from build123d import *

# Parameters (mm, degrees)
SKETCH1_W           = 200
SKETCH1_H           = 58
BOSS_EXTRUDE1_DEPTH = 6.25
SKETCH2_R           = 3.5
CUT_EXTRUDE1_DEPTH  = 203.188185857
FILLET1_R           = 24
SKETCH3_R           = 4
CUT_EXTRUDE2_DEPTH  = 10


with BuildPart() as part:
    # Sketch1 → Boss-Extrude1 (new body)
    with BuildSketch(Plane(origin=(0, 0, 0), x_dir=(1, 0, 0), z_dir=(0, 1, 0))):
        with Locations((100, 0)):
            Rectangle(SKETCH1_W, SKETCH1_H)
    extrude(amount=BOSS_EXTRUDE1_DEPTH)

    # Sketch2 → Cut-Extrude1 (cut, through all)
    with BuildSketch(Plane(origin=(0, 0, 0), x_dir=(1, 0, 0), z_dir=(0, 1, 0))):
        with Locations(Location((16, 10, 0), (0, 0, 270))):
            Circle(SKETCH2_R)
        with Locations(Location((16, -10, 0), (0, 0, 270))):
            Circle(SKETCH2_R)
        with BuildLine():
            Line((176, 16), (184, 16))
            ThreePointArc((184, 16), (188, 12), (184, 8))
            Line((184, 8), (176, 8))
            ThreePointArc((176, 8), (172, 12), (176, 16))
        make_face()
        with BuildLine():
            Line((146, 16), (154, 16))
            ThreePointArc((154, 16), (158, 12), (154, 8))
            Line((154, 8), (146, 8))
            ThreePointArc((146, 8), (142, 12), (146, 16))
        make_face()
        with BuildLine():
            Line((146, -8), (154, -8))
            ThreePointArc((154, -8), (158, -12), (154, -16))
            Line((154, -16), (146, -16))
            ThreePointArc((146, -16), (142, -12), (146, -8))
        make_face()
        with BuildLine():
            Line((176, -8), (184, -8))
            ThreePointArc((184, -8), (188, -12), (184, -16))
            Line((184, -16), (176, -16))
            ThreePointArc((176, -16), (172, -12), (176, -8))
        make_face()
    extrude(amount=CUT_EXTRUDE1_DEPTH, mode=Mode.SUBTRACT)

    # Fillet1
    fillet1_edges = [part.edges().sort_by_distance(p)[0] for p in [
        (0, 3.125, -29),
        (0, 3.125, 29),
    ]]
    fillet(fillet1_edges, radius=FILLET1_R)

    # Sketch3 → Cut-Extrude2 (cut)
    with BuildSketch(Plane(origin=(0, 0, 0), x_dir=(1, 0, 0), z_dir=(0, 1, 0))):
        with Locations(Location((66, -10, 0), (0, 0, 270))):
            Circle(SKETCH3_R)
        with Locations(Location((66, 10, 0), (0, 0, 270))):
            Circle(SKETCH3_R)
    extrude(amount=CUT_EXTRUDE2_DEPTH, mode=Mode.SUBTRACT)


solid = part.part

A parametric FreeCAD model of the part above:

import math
import FreeCAD as App
import Part
import Sketcher
from FreeCAD import Vector


def edges_at(feature, points):
    """Names of the edges that pass closest to the given points."""
    edges = feature.Shape.Edges
    near = lambda p: min(range(len(edges)), key=lambda i: edges[i].distToShape(Part.Vertex(*p))[0])
    return sorted({f"Edge{near(p) + 1}" for p in points})

doc = App.newDocument("Part")
body = doc.addObject("PartDesign::Body", "Body")

# Sketch on XZ plane
sketch1 = body.newObject("Sketcher::SketchObject", "Sketch")
sketch1.AttachmentSupport = (doc.getObject("XZ_Plane"), [""])
sketch1.MapMode = "FlatFace"
sketch1.addGeometry([
    Part.LineSegment(Vector(0, -29, 0), Vector(0, 29, 0)),
    Part.LineSegment(Vector(0, 29, 0), Vector(200, 29, 0)),
    Part.LineSegment(Vector(200, 29, 0), Vector(200, -29, 0)),
    Part.LineSegment(Vector(200, -29, 0), Vector(0, -29, 0)),
], False)
sketch1.addConstraint([
    Sketcher.Constraint("Coincident", 0, 2, 1, 1),
    Sketcher.Constraint("Coincident", 1, 2, 2, 1),
    Sketcher.Constraint("Coincident", 2, 2, 3, 1),
    Sketcher.Constraint("Coincident", 3, 2, 0, 1),
    Sketcher.Constraint("Vertical", 0),
    Sketcher.Constraint("Horizontal", 1),
    Sketcher.Constraint("Vertical", 2),
    Sketcher.Constraint("Horizontal", 3),
    Sketcher.Constraint("Symmetric", 0, 2, 3, 2, -1, 1),
    Sketcher.Constraint("DistanceX", 1, 1, 1, 2, 200.0),
    Sketcher.Constraint("DistanceY", 0, 1, 0, 2, 58.0),
])
pad1 = body.newObject("PartDesign::Pad", "Pad")
pad1.Profile = sketch1
pad1.Length = 6.25
pad1.Reversed = True

# Sketch on XZ plane
sketch2 = body.newObject("Sketcher::SketchObject", "Sketch001")
sketch2.AttachmentSupport = (doc.getObject("XZ_Plane"), [""])
sketch2.MapMode = "FlatFace"
sketch2.addGeometry([
    Part.Circle(Vector(16, -10, 0), Vector(0, 0, 1), 3.5),  # 0
    Part.Circle(Vector(16, 10, 0), Vector(0, 0, 1), 3.5),  # 1
    Part.LineSegment(Vector(184, -16, 0), Vector(176, -16, 0)),  # 2
    Part.ArcOfCircle(Part.Circle(Vector(176, -12, 0), Vector(0, 0, 1), 4), math.radians(90), math.radians(270)),  # 3
    Part.LineSegment(Vector(176, -8, 0), Vector(184, -8, 0)),  # 4
    Part.ArcOfCircle(Part.Circle(Vector(184, -12, 0), Vector(0, 0, 1), 4), math.radians(-90), math.radians(90)),  # 5
    Part.LineSegment(Vector(154, -16, 0), Vector(146, -16, 0)),  # 6
    Part.ArcOfCircle(Part.Circle(Vector(146, -12, 0), Vector(0, 0, 1), 4), math.radians(90), math.radians(270)),  # 7
    Part.LineSegment(Vector(146, -8, 0), Vector(154, -8, 0)),  # 8
    Part.ArcOfCircle(Part.Circle(Vector(154, -12, 0), Vector(0, 0, 1), 4), math.radians(-90), math.radians(90)),  # 9
    Part.LineSegment(Vector(154, 8, 0), Vector(146, 8, 0)),  # 10
    Part.ArcOfCircle(Part.Circle(Vector(146, 12, 0), Vector(0, 0, 1), 4), math.radians(90), math.radians(270)),  # 11
    Part.LineSegment(Vector(146, 16, 0), Vector(154, 16, 0)),  # 12
    Part.ArcOfCircle(Part.Circle(Vector(154, 12, 0), Vector(0, 0, 1), 4), math.radians(-90), math.radians(90)),  # 13
    Part.LineSegment(Vector(184, 8, 0), Vector(176, 8, 0)),  # 14
    Part.ArcOfCircle(Part.Circle(Vector(176, 12, 0), Vector(0, 0, 1), 4), math.radians(90), math.radians(270)),  # 15
    Part.LineSegment(Vector(176, 16, 0), Vector(184, 16, 0)),  # 16
    Part.ArcOfCircle(Part.Circle(Vector(184, 12, 0), Vector(0, 0, 1), 4), math.radians(-90), math.radians(90)),  # 17
], False)
sketch2.addConstraint([
    Sketcher.Constraint("Tangent", 2, 2, 3, 2),
    Sketcher.Constraint("Tangent", 3, 1, 4, 1),
    Sketcher.Constraint("Tangent", 4, 2, 5, 2),
    Sketcher.Constraint("Tangent", 5, 1, 2, 1),
    Sketcher.Constraint("Tangent", 6, 2, 7, 2),
    Sketcher.Constraint("Tangent", 7, 1, 8, 1),
    Sketcher.Constraint("Tangent", 8, 2, 9, 2),
    Sketcher.Constraint("Tangent", 9, 1, 6, 1),
    Sketcher.Constraint("Tangent", 10, 2, 11, 2),
    Sketcher.Constraint("Tangent", 11, 1, 12, 1),
    Sketcher.Constraint("Tangent", 12, 2, 13, 2),
    Sketcher.Constraint("Tangent", 13, 1, 10, 1),
    Sketcher.Constraint("Tangent", 14, 2, 15, 2),
    Sketcher.Constraint("Tangent", 15, 1, 16, 1),
    Sketcher.Constraint("Tangent", 16, 2, 17, 2),
    Sketcher.Constraint("Tangent", 17, 1, 14, 1),
    Sketcher.Constraint("Horizontal", 2),
    Sketcher.Constraint("Horizontal", 4),
    Sketcher.Constraint("Horizontal", 6),
    Sketcher.Constraint("Horizontal", 8),
    Sketcher.Constraint("Horizontal", 10),
    Sketcher.Constraint("Horizontal", 12),
    Sketcher.Constraint("Horizontal", 14),
    Sketcher.Constraint("Horizontal", 16),
    Sketcher.Constraint("Equal", 0, 1),
    Sketcher.Constraint("Equal", 5, 7),
    Sketcher.Constraint("Equal", 9, 11),
    Sketcher.Constraint("Equal", 13, 15),
    Sketcher.Constraint("Symmetric", 0, 3, 1, 3, -1),
    Sketcher.Constraint("Symmetric", 7, 3, 11, 3, -1),
    Sketcher.Constraint("Symmetric", 3, 3, 15, 3, -1),
    Sketcher.Constraint("Horizontal", 5, 3, 7, 3),
    Sketcher.Constraint("Vertical", 9, 3, 13, 3),
    Sketcher.Constraint("Vertical", 5, 3, 17, 3),
    Sketcher.Constraint("Equal", 4, 6),
    Sketcher.Constraint("Diameter", 0, 7.0),
    Sketcher.Constraint("Radius", 3, 4.0),
    Sketcher.Constraint("DistanceX", 2, 2, 2, 1, 8.0),
    Sketcher.Constraint("DistanceX", -1, 1, 0, 3, 16.0),
    Sketcher.Constraint("DistanceY", 0, 3, -1, 1, 10.0),
    Sketcher.Constraint("DistanceX", -1, 1, 3, 3, 176.0),
    Sketcher.Constraint("DistanceY", 3, 3, -1, 1, 12.0),
    Sketcher.Constraint("DistanceX", -1, 1, 7, 3, 146.0),
])
pocket1 = body.newObject("PartDesign::Pocket", "Pocket")
pocket1.Profile = sketch2
pocket1.Type = "ThroughAll"
doc.recompute()

fillet = body.newObject("PartDesign::Fillet", "Fillet")
fillet.Base = (pocket1, edges_at(pocket1, [(0, 3.125, -29), (0, 3.125, 29)]))
fillet.Radius = 24

# Sketch on XZ plane
sketch3 = body.newObject("Sketcher::SketchObject", "Sketch002")
sketch3.AttachmentSupport = (doc.getObject("XZ_Plane"), [""])
sketch3.MapMode = "FlatFace"
sketch3.addGeometry([
    Part.Circle(Vector(66, 10, 0), Vector(0, 0, 1), 4),
    Part.Circle(Vector(66, -10, 0), Vector(0, 0, 1), 4),
], False)
sketch3.addConstraint([
    Sketcher.Constraint("Equal", 0, 1),
    Sketcher.Constraint("Symmetric", 0, 3, 1, 3, -1),
    Sketcher.Constraint("Diameter", 0, 8.0),
    Sketcher.Constraint("DistanceX", -1, 1, 0, 3, 66.0),
    Sketcher.Constraint("DistanceY", -1, 1, 0, 3, 10.0),
])
pocket2 = body.newObject("PartDesign::Pocket", "Pocket001")
pocket2.Profile = sketch3
pocket2.Length = 10

doc.recompute()
